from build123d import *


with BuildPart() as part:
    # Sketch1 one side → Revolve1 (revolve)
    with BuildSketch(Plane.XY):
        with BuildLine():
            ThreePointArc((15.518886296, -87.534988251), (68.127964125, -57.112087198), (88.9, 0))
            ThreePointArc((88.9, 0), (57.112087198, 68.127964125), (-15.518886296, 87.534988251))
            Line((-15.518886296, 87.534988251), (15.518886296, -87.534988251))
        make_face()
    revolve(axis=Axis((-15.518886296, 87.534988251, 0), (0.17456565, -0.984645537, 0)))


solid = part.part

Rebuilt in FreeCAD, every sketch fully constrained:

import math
import FreeCAD as App
import Part
import Sketcher

V = App.Vector
Q = App.Units.Quantity

doc = App.newDocument("Part")
body = doc.addObject("PartDesign::Body", "Body")

sketch1 = doc.addObject("Sketcher::SketchObject", "Sketch")
body.addObject(sketch1)
sketch1.AttachmentSupport = (doc.XY_Plane, [""])
sketch1.MapMode = "FlatFace"
sketch1.addGeometry([
    Part.ArcOfCircle(Part.Circle(V(0, 0, 0), V(0, 0, 1), 89), math.radians(-80), math.radians(0)),
    Part.ArcOfCircle(Part.Circle(V(0, 0, 0), V(0, 0, 1), 89), math.radians(0), math.radians(100)),
    Part.LineSegment(V(-16, 88, 0), V(16, -88, 0)),
], False)
sketch1.addGeometry(Part.LineSegment(V(-16, 88, 0), V(16, -88, 0)), True)
sketch1.addConstraint([
    Sketcher.Constraint("Tangent", 0, 2, 1, 1),
    Sketcher.Constraint("Coincident", 1, 2, 2, 1),
    Sketcher.Constraint("Coincident", 2, 2, 0, 1),
    Sketcher.Constraint("Coincident", 0, 3, -1, 1),
    Sketcher.Constraint("Coincident", 3, 1, 1, 2),
    Sketcher.Constraint("Coincident", 3, 2, 2, 2),
    Sketcher.Constraint("Equal", 0, 1),
    Sketcher.Constraint("PointOnObject", 0, 2, -1),
    Sketcher.Constraint("Radius", 0, Q("3.5 in")),
    Sketcher.Constraint("DistanceY", -1, 1, 1, 2, 87.534988),
    Sketcher.Constraint("DistanceY", 2, 2, -1, 1, 87.534988),
])
revolution = doc.addObject("PartDesign::Revolution", "Revolution")
body.addObject(revolution)
revolution.Profile = sketch1
revolution.ReferenceAxis = (sketch1, ["Axis0"])
revolution.Angle = 360

doc.recompute()
